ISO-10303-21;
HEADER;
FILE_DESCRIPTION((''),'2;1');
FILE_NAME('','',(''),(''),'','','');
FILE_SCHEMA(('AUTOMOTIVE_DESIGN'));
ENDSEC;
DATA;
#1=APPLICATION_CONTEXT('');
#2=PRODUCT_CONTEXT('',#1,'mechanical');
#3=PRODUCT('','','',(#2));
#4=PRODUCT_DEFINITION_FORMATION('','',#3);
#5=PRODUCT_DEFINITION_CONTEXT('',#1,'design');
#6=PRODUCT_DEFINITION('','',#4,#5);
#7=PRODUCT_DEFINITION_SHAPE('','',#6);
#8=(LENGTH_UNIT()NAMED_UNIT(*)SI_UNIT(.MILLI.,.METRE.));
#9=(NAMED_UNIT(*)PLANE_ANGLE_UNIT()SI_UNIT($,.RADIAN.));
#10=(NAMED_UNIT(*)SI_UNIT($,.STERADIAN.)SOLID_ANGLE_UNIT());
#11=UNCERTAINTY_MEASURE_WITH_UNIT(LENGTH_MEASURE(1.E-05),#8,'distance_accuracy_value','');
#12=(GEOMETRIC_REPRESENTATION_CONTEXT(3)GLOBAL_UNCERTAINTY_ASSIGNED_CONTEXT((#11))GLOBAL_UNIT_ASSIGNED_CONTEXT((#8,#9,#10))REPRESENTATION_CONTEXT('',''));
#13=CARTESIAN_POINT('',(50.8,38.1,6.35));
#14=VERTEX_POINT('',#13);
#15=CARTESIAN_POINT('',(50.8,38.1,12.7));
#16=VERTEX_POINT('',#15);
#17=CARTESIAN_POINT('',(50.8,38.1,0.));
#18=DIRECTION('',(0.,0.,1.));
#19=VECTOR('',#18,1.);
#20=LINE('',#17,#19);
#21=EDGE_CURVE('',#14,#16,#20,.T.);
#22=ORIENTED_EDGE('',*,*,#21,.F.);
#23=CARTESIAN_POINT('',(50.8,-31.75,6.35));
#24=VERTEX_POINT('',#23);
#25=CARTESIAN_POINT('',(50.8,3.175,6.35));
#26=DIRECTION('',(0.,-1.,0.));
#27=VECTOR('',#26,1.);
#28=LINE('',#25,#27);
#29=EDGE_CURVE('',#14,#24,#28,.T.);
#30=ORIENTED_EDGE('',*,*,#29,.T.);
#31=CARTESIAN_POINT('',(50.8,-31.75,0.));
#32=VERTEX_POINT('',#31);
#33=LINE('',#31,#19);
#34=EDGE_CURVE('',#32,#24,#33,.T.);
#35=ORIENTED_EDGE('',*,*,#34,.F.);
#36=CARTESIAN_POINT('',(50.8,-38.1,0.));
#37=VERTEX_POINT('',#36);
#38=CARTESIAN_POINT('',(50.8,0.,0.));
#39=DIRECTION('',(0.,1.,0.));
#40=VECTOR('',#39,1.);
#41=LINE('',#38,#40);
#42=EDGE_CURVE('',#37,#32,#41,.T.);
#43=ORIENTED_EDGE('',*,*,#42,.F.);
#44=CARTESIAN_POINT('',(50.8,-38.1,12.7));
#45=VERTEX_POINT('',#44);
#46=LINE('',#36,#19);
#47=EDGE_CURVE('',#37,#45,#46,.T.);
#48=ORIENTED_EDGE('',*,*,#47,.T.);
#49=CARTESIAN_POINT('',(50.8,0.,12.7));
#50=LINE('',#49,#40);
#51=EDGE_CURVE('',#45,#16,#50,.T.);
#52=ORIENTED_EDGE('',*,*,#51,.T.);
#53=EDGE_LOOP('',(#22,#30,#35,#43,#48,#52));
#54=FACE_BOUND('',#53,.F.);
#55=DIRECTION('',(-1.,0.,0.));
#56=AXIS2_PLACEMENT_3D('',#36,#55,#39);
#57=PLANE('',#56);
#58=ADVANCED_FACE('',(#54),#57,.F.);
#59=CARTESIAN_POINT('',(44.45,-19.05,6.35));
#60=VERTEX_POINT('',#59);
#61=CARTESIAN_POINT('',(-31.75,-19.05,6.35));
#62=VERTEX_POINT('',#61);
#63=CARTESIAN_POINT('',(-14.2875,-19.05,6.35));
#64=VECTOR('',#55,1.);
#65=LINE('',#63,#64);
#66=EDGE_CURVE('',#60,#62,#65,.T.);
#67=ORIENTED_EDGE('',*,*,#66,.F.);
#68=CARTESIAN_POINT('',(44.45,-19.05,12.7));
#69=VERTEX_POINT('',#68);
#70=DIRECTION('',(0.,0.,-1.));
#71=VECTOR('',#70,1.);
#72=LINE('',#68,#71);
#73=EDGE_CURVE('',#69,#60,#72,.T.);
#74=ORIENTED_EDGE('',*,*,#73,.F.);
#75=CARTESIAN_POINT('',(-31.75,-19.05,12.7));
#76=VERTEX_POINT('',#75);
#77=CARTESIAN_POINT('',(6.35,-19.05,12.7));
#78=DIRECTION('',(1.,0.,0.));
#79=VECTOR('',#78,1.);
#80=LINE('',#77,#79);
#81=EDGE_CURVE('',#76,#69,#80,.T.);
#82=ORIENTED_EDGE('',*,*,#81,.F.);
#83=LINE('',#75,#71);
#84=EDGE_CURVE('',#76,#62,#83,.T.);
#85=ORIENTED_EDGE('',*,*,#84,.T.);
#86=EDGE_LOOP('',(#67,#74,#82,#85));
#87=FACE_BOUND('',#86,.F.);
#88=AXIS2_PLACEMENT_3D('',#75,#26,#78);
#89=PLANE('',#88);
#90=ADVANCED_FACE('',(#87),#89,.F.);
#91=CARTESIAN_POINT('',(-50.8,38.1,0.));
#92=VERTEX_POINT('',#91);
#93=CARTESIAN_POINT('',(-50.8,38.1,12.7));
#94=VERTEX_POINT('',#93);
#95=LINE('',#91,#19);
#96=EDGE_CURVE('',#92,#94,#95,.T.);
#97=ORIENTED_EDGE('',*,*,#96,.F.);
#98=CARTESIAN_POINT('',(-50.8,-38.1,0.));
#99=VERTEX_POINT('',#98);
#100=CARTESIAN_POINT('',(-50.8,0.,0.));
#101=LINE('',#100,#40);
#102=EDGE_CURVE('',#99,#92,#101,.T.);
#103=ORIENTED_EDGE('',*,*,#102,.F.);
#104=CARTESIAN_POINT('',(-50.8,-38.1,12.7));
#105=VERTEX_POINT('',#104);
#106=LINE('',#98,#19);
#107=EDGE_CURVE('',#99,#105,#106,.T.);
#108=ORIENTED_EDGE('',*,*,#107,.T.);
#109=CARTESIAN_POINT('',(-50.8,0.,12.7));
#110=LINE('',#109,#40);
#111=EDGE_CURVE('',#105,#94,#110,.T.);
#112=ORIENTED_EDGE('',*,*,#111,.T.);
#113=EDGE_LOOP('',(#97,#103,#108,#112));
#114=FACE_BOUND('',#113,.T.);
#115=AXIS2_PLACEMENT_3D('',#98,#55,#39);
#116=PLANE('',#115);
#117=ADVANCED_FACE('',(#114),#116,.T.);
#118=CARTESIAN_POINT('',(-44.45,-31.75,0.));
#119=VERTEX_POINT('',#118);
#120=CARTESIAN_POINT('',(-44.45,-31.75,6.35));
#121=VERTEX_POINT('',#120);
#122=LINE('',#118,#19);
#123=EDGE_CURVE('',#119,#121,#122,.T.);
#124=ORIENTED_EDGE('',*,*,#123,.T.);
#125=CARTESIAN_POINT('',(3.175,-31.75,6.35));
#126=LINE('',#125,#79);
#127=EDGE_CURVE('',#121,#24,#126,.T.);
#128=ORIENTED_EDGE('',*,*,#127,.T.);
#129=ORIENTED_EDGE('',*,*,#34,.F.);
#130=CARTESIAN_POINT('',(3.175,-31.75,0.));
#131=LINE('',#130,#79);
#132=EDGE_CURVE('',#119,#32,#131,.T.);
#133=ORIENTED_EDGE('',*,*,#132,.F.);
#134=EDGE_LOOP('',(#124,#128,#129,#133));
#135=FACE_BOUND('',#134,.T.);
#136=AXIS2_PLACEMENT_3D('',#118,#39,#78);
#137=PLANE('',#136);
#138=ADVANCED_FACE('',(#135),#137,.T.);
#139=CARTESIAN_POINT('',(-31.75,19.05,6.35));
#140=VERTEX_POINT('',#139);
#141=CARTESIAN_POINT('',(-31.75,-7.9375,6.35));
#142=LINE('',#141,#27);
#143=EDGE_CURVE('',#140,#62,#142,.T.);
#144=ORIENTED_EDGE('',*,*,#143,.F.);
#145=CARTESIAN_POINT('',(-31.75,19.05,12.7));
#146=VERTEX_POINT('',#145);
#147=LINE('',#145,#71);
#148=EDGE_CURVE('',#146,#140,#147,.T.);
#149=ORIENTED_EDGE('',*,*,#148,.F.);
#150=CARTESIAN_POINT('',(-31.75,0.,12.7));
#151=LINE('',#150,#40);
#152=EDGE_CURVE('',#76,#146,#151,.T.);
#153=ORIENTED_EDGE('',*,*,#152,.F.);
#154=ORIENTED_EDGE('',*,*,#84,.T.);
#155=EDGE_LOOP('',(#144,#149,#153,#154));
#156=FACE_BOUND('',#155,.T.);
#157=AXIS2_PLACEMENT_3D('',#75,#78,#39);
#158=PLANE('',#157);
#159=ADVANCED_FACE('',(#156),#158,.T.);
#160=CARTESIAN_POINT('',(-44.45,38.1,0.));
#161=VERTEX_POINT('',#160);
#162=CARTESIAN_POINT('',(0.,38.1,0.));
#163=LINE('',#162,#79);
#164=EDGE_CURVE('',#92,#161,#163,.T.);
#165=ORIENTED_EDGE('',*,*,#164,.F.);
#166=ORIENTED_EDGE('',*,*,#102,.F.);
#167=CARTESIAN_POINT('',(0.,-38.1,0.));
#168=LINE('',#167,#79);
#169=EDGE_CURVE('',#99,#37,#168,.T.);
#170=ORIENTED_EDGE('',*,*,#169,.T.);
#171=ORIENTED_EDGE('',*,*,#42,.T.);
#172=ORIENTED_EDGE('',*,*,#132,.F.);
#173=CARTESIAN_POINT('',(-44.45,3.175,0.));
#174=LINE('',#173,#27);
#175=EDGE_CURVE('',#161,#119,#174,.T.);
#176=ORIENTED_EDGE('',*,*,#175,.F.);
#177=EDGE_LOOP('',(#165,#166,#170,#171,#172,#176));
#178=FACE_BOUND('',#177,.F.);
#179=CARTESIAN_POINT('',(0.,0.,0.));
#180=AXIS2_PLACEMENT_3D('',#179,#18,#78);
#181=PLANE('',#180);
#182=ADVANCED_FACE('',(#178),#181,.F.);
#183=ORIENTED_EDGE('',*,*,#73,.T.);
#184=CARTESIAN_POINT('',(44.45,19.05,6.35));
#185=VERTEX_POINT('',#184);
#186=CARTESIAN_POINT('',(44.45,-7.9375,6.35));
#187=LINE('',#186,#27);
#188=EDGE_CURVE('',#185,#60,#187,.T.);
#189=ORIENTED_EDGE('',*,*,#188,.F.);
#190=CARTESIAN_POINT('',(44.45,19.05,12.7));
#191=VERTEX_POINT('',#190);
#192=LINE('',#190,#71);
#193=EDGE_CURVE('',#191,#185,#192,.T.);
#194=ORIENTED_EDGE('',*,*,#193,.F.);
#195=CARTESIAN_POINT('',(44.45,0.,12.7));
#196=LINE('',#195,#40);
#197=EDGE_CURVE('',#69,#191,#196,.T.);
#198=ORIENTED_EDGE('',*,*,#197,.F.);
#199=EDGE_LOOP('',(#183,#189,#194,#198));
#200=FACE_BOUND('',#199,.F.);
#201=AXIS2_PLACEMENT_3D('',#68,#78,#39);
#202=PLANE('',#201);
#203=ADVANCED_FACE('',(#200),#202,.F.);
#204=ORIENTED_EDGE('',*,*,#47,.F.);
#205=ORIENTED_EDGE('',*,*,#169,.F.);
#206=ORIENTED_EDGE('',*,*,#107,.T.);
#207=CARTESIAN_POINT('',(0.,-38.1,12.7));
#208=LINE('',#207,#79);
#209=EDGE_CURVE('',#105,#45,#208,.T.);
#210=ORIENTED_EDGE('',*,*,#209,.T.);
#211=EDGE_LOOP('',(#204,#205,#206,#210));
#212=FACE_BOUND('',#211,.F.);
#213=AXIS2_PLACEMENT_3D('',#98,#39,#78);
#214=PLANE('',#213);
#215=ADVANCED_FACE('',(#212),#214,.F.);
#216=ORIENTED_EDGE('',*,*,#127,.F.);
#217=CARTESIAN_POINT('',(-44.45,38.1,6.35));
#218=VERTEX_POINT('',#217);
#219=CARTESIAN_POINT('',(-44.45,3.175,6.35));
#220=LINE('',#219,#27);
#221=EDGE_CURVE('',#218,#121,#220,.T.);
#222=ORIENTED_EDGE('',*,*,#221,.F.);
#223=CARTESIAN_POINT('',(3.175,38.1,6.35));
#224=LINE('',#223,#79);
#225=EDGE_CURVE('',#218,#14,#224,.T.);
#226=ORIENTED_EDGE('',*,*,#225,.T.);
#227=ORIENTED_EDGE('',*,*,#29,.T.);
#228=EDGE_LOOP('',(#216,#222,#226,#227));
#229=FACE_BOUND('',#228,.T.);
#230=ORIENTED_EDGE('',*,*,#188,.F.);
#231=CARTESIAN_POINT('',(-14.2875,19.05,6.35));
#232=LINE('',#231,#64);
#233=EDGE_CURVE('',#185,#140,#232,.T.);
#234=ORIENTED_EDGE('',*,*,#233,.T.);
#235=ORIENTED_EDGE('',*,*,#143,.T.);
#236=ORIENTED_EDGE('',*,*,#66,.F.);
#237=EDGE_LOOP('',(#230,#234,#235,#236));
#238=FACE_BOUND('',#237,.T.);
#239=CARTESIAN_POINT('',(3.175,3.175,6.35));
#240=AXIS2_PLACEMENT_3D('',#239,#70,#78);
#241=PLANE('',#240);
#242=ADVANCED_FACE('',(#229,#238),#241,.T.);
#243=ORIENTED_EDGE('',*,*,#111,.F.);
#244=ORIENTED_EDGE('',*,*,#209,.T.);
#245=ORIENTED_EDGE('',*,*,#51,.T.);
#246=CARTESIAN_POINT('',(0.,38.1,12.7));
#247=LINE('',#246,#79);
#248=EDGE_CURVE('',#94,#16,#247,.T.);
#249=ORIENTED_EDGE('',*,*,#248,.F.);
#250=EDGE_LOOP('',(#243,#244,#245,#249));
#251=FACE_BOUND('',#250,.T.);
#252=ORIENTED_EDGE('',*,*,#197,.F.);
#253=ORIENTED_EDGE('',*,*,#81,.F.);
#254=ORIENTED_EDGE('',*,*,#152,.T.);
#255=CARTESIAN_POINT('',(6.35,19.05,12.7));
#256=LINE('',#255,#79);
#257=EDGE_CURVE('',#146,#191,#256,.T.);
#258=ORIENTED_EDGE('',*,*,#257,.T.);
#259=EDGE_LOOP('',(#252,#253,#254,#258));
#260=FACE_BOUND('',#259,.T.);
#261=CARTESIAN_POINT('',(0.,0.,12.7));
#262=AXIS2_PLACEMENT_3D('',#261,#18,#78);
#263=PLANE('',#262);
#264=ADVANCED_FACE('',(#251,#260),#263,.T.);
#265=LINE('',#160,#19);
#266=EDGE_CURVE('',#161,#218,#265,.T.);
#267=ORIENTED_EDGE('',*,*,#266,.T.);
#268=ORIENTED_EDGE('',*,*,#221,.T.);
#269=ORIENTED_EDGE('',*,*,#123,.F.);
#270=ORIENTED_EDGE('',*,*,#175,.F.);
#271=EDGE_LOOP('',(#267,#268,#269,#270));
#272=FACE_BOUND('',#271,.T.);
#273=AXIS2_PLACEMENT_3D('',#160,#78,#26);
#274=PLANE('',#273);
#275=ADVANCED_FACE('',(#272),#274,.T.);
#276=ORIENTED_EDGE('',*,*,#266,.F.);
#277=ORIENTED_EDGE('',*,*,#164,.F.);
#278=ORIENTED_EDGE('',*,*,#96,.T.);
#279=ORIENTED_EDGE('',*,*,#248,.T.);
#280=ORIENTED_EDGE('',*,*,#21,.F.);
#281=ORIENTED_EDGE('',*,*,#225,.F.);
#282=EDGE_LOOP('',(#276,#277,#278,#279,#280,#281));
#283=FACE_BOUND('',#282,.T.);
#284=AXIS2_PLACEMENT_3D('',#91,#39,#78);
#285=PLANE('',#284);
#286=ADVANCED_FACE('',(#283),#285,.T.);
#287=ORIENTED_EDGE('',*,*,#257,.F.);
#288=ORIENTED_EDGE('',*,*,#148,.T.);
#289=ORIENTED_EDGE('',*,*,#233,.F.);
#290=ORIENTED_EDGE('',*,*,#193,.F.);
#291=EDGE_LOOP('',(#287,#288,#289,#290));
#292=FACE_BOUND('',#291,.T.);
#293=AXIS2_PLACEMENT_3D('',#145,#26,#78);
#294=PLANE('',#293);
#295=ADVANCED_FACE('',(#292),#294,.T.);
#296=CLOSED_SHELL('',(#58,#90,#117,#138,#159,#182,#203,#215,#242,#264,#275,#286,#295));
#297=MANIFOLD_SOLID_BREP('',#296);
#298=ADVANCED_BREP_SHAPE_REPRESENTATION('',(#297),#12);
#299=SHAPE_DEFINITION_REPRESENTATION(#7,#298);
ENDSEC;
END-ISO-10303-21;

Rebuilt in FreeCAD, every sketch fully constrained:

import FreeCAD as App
import Part
import Sketcher
from FreeCAD import Vector
Q = App.Units.Quantity


def add_polygon(sketch, points):
    """Adds a closed chain of lines whose ends are joined by coincident constraints."""
    first, n = sketch.GeometryCount, len(points)
    for a, b in zip(points, points[1:] + points[:1]):
        sketch.addGeometry(Part.LineSegment(App.Vector(*a, 0), App.Vector(*b, 0)), False)
    for i in range(n):
        sketch.addConstraint(Sketcher.Constraint("Coincident", first + i, 2, first + (i + 1) % n, 1))

doc = App.newDocument("Part")
body = doc.addObject("PartDesign::Body", "Body")

# Sketch on XY plane
sketch1 = body.newObject("Sketcher::SketchObject", "Sketch")
sketch1.AttachmentSupport = (doc.getObject("XY_Plane"), [""])
sketch1.MapMode = "FlatFace"
add_polygon(sketch1, [(-51, 38), (-51, -38), (51, -38), (51, 38)])  # lines 0-3
sketch1.addConstraint([
    Sketcher.Constraint("Vertical", 0),
    Sketcher.Constraint("Horizontal", 1),
    Sketcher.Constraint("Vertical", 2),
    Sketcher.Constraint("Horizontal", 3),
    Sketcher.Constraint("Symmetric", 0, 2, 2, 2, -1, 1),
    Sketcher.Constraint("DistanceX", 1, 1, 1, 2, Q("4 in")),
    Sketcher.Constraint("DistanceY", 0, 2, 0, 1, Q("3 in")),
])
pad1 = body.newObject("PartDesign::Pad", "Pad")
pad1.Profile = sketch1
pad1.Length = Q("0.5 in")

# Sketch on XY plane
sketch2 = body.newObject("Sketcher::SketchObject", "Sketch001")
sketch2.AttachmentSupport = (doc.getObject("XY_Plane"), [""])
sketch2.MapMode = "FlatFace"
add_polygon(sketch2, [(-44, -32), (-44, 38), (51, 38), (51, -32)])  # lines 0-3
sketch2.addConstraint([
    Sketcher.Constraint("Vertical", 0),
    Sketcher.Constraint("Horizontal", 1),
    Sketcher.Constraint("Vertical", 2),
    Sketcher.Constraint("Horizontal", 3),
    Sketcher.Constraint("DistanceX", -1, 1, 1, 2, Q("2 in")),
    Sketcher.Constraint("DistanceX", 1, 1, 1, 2, Q("3.75 in")),
    Sketcher.Constraint("DistanceY", 0, 1, 0, 2, Q("2.75 in")),
    Sketcher.Constraint("DistanceY", -1, 1, 0, 2, Q("1.5 in")),
])
pocket1 = body.newObject("PartDesign::Pocket", "Pocket")
pocket1.Profile = sketch2
pocket1.Length = Q("0.25 in")
pocket1.Reversed = True

# Sketch on XY plane
sketch3 = body.newObject("Sketcher::SketchObject", "Sketch002")
sketch3.AttachmentSupport = (doc.getObject("XY_Plane"), [""])
sketch3.MapMode = "FlatFace"
sketch3.AttachmentOffset = App.Placement(Vector(0, 0, 0.5 * 25.4), App.Rotation())
add_polygon(sketch3, [(-32, 19), (-32, -19), (44, -19), (44, 19)])  # lines 0-3
sketch3.addConstraint([
    Sketcher.Constraint("Vertical", 0),
    Sketcher.Constraint("Horizontal", 1),
    Sketcher.Constraint("Vertical", 2),
    Sketcher.Constraint("Horizontal", 3),
    Sketcher.Constraint("DistanceX", 1, 1, 1, 2, Q("3 in")),
    Sketcher.Constraint("DistanceY", 0, 2, 0, 1, Q("1.5 in")),
    Sketcher.Constraint("DistanceX", 0, 2, -1, 1, Q("1.25 in")),
    Sketcher.Constraint("DistanceY", 0, 2, -1, 1, Q("0.75 in")),
])
pocket2 = body.newObject("PartDesign::Pocket", "Pocket001")
pocket2.Profile = sketch3
pocket2.Length = Q("1 in")

doc.recompute()
